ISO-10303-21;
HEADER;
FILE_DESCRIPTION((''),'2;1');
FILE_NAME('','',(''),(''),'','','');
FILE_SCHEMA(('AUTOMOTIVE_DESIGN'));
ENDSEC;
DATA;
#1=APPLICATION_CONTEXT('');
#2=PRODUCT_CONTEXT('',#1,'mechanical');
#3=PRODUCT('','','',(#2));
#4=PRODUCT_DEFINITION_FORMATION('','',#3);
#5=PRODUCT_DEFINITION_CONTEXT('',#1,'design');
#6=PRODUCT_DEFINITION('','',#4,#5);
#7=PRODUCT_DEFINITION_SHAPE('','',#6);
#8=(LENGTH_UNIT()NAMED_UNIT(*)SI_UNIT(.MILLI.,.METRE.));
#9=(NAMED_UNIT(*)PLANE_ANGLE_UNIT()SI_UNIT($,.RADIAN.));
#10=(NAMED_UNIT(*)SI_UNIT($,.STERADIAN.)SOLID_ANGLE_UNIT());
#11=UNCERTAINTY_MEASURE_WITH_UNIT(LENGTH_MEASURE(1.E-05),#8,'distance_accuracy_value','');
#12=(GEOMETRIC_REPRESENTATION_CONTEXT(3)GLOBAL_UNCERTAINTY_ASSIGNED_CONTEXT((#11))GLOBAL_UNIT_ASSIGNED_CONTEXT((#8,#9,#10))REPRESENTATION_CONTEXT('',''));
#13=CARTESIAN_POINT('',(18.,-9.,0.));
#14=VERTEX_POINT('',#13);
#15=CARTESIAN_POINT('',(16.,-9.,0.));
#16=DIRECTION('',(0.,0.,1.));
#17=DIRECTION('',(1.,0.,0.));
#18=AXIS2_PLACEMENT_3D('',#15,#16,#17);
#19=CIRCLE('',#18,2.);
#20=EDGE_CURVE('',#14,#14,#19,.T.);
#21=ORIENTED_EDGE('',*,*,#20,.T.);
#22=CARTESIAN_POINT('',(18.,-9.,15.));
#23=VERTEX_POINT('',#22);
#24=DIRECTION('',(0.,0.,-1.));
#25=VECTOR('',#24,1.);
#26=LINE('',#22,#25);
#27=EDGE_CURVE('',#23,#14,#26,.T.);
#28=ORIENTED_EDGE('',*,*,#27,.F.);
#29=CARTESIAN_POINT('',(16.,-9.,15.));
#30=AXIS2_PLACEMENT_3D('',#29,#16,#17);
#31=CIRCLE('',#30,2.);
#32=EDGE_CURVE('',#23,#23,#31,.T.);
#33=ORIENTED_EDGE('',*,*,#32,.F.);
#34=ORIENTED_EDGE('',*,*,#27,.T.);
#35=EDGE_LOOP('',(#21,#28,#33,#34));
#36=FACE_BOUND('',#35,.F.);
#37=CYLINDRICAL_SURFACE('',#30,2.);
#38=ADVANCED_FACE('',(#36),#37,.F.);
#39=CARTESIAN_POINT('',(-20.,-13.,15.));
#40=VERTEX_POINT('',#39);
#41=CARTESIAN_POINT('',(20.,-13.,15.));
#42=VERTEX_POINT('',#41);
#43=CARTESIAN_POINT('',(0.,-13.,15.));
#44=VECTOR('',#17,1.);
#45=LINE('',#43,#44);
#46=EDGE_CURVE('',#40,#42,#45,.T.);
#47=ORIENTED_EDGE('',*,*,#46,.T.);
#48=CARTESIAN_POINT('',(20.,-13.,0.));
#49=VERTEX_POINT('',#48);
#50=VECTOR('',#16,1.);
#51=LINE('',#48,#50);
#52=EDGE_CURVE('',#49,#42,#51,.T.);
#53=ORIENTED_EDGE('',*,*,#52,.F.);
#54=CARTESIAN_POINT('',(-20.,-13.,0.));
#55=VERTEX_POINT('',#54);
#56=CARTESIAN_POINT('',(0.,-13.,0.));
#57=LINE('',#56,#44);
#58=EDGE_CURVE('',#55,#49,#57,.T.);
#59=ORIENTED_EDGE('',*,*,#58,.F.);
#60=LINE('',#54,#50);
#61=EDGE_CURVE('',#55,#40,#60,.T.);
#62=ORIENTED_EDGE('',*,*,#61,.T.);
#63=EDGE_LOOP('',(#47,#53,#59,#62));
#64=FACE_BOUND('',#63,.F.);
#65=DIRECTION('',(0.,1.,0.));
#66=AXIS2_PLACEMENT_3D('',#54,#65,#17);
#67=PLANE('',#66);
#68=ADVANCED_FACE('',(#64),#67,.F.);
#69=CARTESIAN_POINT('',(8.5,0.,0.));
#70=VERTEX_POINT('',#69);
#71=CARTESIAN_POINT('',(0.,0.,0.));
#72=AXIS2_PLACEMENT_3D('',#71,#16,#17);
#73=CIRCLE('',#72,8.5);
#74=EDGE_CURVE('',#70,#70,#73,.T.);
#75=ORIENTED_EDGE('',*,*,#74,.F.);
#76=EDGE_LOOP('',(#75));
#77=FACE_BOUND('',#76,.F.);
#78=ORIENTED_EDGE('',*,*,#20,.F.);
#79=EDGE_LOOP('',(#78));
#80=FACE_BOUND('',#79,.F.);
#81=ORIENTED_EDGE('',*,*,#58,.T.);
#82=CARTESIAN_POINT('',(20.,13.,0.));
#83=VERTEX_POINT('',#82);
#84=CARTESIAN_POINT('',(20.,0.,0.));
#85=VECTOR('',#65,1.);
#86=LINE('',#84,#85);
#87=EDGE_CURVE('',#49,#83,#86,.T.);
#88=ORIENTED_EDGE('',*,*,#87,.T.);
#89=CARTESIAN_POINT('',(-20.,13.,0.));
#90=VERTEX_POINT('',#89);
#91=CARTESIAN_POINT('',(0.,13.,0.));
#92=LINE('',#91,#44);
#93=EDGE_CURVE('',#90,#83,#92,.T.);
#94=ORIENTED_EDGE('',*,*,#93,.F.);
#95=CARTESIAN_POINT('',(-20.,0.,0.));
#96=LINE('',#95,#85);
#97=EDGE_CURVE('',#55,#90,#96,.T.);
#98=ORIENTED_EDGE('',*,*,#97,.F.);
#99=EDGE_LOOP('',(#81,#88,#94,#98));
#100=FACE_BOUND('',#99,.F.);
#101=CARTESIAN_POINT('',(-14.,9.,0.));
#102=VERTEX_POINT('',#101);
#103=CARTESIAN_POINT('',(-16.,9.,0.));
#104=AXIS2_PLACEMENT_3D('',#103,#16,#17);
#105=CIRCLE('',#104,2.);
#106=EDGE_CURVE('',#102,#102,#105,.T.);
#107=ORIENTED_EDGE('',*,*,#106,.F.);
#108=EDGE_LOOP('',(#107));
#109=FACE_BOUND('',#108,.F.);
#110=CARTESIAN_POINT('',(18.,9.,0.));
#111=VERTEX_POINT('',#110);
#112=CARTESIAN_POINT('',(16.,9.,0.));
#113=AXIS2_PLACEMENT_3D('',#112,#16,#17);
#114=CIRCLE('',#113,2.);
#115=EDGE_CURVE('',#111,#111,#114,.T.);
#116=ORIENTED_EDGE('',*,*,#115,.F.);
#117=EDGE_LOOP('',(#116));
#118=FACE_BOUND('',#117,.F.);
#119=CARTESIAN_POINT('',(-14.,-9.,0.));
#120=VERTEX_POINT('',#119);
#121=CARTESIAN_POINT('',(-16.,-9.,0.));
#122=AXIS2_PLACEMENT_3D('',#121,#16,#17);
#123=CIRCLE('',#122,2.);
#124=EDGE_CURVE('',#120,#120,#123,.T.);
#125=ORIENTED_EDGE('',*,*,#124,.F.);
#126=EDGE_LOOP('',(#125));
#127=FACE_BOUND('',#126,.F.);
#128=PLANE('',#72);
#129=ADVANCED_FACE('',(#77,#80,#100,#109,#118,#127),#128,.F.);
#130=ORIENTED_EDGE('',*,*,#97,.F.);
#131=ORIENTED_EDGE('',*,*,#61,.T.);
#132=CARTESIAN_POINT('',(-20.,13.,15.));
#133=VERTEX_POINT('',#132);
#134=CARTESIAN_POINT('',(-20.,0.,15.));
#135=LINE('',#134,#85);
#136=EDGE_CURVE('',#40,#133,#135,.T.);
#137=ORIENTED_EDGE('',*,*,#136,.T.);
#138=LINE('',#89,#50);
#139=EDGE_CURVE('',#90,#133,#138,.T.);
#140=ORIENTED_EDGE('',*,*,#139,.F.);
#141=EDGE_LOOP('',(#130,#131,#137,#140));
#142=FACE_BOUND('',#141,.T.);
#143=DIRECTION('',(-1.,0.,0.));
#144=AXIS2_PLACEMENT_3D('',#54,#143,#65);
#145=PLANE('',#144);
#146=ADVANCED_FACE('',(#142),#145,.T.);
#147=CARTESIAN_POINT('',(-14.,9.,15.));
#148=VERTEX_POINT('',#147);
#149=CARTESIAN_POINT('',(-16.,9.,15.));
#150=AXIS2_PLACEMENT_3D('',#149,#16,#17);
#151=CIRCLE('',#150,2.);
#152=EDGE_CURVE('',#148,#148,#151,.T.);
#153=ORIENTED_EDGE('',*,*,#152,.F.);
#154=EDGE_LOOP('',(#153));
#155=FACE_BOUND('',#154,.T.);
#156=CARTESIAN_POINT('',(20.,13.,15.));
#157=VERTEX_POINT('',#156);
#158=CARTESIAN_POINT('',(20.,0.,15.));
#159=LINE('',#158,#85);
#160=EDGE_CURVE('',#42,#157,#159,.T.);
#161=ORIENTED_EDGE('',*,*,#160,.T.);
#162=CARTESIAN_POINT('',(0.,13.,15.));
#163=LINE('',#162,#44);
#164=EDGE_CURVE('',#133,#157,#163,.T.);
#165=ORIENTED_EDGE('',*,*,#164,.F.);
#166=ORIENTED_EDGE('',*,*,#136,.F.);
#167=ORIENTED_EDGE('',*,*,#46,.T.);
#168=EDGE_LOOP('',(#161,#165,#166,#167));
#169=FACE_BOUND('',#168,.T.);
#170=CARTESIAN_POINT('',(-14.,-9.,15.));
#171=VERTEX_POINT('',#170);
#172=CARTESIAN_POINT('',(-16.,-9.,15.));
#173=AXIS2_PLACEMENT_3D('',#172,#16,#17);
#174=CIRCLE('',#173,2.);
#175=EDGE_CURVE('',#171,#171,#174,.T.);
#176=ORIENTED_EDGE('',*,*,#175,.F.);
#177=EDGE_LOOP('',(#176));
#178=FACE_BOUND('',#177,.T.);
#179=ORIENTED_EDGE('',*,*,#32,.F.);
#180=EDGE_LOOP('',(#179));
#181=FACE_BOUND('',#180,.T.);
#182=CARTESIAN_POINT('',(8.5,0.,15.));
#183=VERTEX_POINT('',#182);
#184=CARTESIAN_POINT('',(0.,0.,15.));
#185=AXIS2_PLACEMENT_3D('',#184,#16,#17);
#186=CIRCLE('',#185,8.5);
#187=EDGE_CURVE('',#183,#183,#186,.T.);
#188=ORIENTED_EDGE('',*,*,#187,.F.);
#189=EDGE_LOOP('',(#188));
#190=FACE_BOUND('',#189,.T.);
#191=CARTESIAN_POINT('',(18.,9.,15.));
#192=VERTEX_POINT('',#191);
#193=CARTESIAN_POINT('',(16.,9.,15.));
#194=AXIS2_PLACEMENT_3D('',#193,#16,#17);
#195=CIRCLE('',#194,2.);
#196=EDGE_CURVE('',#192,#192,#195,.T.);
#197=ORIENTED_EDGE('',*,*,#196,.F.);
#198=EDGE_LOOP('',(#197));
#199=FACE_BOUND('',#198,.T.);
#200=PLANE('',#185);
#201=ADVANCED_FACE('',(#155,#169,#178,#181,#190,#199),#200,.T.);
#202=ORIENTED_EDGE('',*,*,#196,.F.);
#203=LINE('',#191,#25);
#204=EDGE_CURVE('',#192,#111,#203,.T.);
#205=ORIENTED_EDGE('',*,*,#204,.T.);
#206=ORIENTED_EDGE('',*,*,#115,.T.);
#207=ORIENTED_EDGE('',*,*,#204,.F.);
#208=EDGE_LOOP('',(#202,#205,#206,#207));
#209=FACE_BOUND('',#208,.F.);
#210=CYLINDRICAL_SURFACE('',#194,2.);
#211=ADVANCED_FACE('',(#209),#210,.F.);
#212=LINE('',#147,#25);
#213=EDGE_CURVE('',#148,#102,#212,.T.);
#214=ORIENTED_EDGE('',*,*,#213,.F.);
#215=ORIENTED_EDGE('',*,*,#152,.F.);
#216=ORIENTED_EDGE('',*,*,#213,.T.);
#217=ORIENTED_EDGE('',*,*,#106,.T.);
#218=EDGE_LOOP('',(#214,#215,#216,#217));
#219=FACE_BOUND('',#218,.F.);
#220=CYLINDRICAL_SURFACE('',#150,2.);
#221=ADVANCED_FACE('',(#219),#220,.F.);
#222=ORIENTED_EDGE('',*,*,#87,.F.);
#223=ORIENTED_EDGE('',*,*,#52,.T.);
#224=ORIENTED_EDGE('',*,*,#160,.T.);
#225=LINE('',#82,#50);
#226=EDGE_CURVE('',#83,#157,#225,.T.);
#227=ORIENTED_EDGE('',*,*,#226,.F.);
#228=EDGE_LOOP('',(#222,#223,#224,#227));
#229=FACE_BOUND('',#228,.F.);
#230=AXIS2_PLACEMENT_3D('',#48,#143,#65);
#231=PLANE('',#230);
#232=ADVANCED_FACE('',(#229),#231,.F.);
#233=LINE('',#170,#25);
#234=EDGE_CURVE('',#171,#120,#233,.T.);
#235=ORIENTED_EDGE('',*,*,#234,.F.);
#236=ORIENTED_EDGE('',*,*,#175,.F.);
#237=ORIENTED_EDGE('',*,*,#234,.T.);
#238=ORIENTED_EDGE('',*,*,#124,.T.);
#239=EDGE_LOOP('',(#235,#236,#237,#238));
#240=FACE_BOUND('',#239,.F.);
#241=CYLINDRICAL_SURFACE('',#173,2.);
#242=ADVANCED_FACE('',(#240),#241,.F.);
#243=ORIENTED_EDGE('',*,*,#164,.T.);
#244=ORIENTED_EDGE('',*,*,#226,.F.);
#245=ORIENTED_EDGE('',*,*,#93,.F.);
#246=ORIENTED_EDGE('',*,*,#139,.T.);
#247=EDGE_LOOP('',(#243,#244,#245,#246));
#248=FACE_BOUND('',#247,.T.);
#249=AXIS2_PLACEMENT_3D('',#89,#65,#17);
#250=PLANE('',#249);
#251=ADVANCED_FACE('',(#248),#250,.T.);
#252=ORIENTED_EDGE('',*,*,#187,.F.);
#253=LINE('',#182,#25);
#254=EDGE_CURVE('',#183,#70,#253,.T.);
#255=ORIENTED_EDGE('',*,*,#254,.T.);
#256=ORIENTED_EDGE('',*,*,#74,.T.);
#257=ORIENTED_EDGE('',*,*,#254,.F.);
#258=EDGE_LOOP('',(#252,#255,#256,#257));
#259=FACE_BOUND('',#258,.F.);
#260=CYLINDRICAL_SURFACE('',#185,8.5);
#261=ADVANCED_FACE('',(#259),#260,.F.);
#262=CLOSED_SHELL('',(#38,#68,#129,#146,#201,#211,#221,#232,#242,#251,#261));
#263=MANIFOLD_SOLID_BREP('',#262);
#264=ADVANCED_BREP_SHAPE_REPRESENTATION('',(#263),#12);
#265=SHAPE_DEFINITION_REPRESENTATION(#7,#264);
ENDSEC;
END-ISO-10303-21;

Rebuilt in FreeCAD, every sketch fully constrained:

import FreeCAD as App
import Part
import Sketcher

V = App.Vector
Q = App.Units.Quantity


def add_polygon(sketch, points):
    """Adds a closed chain of lines whose ends are joined by coincident constraints."""
    first, n = sketch.GeometryCount, len(points)
    for a, b in zip(points, points[1:] + points[:1]):
        sketch.addGeometry(Part.LineSegment(App.Vector(*a, 0), App.Vector(*b, 0)), False)
    for i in range(n):
        sketch.addConstraint(Sketcher.Constraint("Coincident", first + i, 2, first + (i + 1) % n, 1))

doc = App.newDocument("Part")
body = doc.addObject("PartDesign::Body", "Body")

# Sketch on XY plane
sketch1 = body.newObject("Sketcher::SketchObject", "Sketch")
sketch1.AttachmentSupport = (doc.getObject("XY_Plane"), [""])
sketch1.MapMode = "FlatFace"
add_polygon(sketch1, [(-20, 13), (-20, -13), (20, -13), (20, 13)])  # lines 0-3
sketch1.addConstraint(Sketcher.Constraint("Vertical", 0))
sketch1.addConstraint(Sketcher.Constraint("Horizontal", 1))
sketch1.addConstraint(Sketcher.Constraint("Vertical", 2))
sketch1.addConstraint(Sketcher.Constraint("Horizontal", 3))
sketch1.addConstraint(Sketcher.Constraint("Symmetric", 0, 2, 2, 2, -1, 1))
sketch1.addConstraint(Sketcher.Constraint("DistanceX", 1, 1, 1, 2, Q("40 mm")))
sketch1.addConstraint(Sketcher.Constraint("DistanceY", 0, 2, 0, 1, Q("26 mm")))
pad1 = body.newObject("PartDesign::Pad", "Pad")
pad1.Profile = sketch1
pad1.Length = 15

# Sketch on XY plane
sketch2 = body.newObject("Sketcher::SketchObject", "Sketch001")
sketch2.AttachmentSupport = (doc.getObject("XY_Plane"), [""])
sketch2.MapMode = "FlatFace"
sketch2.AttachmentOffset = App.Placement(V(0, 0, 15), App.Rotation())
sketch2.addGeometry(Part.Circle(V(0, 0, 0), V(0, 0, 1), 8.5), False)
sketch2.addGeometry(Part.Circle(V(-16, 9, 0), V(0, 0, 1), 2), False)
sketch2.addGeometry(Part.Circle(V(-16, -9, 0), V(0, 0, 1), 2), False)
sketch2.addGeometry(Part.Circle(V(16, 9, 0), V(0, 0, 1), 2), False)
sketch2.addGeometry(Part.Circle(V(16, -9, 0), V(0, 0, 1), 2), False)
sketch2.addConstraint(Sketcher.Constraint("Coincident", 0, 3, -1, 1))
sketch2.addConstraint(Sketcher.Constraint("Equal", 1, 2))
sketch2.addConstraint(Sketcher.Constraint("Equal", 2, 3))
sketch2.addConstraint(Sketcher.Constraint("Equal", 3, 4))
sketch2.addConstraint(Sketcher.Constraint("Symmetric", 2, 3, 3, 3, -1, 1))
sketch2.addConstraint(Sketcher.Constraint("Symmetric", 1, 3, 4, 3, -1, 1))
sketch2.addConstraint(Sketcher.Constraint("Symmetric", 1, 3, 3, 3, -2))
sketch2.addConstraint(Sketcher.Constraint("Diameter", 0, Q("17 mm")))
sketch2.addConstraint(Sketcher.Constraint("Diameter", 1, Q("4 mm")))
sketch2.addConstraint(Sketcher.Constraint("DistanceX", 1, 3, -1, 1, Q("16 mm")))
sketch2.addConstraint(Sketcher.Constraint("DistanceY", -1, 1, 1, 3, Q("9 mm")))
pocket1 = body.newObject("PartDesign::Pocket", "Pocket")
pocket1.Profile = sketch2
pocket1.Type = "ThroughAll"

doc.recompute()
